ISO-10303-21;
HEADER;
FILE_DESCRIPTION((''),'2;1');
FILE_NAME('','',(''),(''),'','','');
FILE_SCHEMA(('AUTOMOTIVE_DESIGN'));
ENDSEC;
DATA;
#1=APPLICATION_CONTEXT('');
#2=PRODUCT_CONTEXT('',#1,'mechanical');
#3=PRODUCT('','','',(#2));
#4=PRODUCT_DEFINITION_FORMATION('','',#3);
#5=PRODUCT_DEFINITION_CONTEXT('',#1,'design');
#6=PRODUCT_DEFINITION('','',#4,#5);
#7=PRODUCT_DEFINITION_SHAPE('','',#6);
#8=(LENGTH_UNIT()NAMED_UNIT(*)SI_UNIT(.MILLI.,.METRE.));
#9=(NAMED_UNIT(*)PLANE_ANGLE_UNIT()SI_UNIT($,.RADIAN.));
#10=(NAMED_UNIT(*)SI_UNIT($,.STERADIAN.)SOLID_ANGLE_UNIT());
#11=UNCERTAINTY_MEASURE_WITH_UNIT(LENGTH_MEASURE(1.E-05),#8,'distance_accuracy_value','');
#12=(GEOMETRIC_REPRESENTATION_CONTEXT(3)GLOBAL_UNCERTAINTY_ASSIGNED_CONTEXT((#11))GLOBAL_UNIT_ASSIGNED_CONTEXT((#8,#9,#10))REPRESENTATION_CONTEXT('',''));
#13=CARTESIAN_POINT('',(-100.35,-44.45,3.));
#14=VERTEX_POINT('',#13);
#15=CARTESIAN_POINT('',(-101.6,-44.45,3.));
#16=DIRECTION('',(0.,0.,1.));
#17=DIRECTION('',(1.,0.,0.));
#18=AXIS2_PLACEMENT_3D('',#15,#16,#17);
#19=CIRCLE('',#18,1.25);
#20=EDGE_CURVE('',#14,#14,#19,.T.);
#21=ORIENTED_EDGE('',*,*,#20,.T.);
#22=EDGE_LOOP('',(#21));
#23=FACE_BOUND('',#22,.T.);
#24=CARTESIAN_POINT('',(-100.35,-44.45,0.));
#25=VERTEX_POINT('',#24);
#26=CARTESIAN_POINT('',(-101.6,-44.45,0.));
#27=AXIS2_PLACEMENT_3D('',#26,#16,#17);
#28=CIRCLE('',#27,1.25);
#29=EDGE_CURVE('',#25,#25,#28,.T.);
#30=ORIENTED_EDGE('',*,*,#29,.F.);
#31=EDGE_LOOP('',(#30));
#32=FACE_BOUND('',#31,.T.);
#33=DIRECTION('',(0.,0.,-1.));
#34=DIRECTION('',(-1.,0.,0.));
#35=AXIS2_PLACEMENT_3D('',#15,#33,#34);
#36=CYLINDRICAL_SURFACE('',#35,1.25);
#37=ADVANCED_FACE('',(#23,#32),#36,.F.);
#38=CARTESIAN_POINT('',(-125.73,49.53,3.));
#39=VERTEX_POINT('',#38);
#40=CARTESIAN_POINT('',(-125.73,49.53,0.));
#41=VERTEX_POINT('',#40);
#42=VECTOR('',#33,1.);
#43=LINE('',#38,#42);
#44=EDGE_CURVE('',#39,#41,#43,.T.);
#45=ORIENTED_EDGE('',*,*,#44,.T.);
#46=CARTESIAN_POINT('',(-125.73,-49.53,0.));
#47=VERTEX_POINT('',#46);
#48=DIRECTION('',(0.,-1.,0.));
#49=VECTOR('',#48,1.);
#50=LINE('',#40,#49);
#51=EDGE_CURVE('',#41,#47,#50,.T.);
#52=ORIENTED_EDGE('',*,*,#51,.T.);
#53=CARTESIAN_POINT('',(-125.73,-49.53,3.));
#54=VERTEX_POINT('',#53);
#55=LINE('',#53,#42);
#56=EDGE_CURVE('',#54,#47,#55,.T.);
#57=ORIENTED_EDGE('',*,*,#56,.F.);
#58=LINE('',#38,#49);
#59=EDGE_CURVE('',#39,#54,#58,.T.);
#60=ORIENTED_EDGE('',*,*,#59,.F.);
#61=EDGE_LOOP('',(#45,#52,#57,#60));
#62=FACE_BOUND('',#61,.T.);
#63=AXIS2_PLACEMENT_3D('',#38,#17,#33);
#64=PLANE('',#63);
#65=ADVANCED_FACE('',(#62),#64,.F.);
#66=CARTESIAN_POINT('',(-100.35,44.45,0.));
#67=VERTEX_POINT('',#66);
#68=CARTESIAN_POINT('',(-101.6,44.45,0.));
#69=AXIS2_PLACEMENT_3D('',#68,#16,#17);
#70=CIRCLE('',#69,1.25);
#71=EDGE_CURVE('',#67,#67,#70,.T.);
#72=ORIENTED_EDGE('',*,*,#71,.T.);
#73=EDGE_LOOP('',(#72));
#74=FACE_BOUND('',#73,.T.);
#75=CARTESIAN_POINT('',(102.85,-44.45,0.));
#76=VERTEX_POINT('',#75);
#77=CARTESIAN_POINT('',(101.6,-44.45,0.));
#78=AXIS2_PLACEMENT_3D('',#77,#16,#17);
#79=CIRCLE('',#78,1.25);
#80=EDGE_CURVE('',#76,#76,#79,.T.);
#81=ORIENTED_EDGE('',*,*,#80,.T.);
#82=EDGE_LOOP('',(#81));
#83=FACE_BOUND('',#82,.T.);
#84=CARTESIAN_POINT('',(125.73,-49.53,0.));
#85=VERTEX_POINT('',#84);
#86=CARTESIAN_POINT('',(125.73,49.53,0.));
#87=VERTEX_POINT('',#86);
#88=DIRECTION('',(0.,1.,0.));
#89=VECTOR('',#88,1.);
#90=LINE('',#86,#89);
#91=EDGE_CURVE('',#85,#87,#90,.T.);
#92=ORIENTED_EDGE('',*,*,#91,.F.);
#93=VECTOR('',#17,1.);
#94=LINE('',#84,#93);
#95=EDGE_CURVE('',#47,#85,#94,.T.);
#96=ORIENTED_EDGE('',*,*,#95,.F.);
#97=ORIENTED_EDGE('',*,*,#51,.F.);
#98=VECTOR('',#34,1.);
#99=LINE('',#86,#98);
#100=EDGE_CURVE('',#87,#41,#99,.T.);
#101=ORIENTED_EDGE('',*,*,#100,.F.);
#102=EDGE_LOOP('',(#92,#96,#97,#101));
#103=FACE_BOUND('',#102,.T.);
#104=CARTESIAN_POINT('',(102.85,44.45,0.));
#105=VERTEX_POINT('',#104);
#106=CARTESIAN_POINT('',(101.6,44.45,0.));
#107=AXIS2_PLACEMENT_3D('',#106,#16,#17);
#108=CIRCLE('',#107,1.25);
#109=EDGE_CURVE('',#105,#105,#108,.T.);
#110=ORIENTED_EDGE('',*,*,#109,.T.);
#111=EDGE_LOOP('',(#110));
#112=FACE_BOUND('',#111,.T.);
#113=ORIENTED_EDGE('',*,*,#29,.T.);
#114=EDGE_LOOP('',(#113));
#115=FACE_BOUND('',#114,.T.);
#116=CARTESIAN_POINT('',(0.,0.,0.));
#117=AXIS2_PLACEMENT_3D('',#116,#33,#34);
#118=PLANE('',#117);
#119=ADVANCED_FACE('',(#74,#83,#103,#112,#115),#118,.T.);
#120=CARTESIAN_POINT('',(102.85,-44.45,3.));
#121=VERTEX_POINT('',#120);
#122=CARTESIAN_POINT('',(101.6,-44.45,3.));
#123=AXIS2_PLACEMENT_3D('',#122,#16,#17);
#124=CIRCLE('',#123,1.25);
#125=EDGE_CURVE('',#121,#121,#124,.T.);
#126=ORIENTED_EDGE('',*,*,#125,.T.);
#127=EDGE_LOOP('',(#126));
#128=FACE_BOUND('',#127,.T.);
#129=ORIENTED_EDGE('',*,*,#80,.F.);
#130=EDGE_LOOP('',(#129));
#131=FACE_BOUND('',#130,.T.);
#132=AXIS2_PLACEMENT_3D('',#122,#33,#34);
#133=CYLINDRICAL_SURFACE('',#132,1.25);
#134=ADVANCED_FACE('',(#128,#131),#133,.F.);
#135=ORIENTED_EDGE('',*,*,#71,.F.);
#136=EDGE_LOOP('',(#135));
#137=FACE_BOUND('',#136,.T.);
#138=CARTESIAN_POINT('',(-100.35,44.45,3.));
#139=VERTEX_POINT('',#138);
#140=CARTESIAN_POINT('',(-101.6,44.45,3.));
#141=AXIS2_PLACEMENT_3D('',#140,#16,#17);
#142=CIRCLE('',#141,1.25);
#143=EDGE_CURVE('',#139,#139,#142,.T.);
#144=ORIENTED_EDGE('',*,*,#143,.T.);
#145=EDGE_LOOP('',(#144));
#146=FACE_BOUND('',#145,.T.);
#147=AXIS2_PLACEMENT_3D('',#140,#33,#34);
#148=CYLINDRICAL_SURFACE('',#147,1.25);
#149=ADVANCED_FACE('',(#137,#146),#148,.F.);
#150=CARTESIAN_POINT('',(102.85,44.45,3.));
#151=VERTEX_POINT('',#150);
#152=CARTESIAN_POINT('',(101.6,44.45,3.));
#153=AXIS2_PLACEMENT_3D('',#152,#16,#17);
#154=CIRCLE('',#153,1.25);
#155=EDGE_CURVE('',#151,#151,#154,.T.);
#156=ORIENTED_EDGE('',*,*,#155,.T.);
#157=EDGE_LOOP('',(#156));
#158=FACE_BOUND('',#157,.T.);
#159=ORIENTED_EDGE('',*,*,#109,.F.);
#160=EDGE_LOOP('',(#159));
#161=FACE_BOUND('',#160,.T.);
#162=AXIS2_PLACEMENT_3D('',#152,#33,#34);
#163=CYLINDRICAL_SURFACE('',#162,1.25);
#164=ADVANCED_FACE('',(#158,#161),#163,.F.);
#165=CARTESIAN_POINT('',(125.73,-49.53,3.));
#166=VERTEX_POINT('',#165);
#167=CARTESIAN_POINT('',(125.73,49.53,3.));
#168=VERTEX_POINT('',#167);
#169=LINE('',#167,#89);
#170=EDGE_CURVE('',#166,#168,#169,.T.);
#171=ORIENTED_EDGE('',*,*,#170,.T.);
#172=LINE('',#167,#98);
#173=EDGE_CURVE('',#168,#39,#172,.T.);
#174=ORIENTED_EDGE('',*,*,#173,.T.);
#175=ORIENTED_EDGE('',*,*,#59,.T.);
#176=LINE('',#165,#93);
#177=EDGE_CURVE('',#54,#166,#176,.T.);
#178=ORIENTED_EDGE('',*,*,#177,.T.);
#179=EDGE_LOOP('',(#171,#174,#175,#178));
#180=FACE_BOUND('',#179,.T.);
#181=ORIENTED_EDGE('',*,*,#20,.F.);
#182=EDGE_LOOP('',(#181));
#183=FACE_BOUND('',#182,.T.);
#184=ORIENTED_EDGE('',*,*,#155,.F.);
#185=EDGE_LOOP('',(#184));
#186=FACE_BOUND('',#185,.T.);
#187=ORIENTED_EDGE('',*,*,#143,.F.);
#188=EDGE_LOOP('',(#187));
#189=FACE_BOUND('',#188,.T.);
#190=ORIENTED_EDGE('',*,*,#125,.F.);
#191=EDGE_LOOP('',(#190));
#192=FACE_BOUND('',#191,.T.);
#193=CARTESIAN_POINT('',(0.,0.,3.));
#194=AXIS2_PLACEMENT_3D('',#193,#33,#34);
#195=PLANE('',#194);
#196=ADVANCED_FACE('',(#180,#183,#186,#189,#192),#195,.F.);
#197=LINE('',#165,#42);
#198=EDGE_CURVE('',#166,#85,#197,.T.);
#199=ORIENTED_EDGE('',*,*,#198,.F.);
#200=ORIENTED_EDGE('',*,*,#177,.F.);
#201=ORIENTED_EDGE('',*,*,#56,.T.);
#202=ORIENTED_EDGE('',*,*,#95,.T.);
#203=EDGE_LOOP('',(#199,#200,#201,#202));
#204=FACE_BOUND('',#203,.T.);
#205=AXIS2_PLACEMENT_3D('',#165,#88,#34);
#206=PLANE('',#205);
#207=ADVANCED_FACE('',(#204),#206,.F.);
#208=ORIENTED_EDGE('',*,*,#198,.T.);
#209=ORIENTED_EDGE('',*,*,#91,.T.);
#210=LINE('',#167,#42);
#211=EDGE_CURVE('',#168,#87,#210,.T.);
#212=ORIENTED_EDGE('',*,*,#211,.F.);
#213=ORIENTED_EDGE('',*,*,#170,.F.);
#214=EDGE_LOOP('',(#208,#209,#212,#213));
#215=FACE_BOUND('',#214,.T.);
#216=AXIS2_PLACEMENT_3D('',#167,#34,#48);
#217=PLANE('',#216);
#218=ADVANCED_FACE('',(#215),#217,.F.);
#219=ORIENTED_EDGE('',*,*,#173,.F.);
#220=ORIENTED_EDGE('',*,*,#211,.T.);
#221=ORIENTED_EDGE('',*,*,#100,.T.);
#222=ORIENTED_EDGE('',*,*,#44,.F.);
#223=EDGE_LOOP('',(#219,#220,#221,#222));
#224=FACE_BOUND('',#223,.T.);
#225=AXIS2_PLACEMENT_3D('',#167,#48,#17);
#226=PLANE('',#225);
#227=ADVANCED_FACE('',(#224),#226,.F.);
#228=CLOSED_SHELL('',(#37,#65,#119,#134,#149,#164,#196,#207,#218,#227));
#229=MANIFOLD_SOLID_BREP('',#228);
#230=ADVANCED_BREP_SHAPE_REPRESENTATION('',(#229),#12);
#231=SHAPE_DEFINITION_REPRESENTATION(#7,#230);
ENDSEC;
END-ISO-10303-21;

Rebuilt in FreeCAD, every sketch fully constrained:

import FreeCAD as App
import Part
import Sketcher
from FreeCAD import Vector

doc = App.newDocument("Part")
params = doc.addObject("Spreadsheet::Sheet", "Params")
for row, (alias, value) in enumerate([
    ("sketch1_diameter", "2.5 mm"),
    ("sketch1_width", "251.46 mm"),
    ("sketch1_height", "99.06 mm"),
    ("pad1_length", "3 mm"),
], start=1):
    params.set(f"A{row}", alias)
    params.set(f"B{row}", "=" + value)
    params.setAlias(f"B{row}", alias)

body = doc.addObject("PartDesign::Body", "Body")

# Sketch on XY plane
sketch1 = doc.addObject("Sketcher::SketchObject", "Sketch")
body.addObject(sketch1)
sketch1.AttachmentSupport = (doc.XY_Plane, [""])
sketch1.MapMode = "FlatFace"
sketch1.addGeometry([
    Part.LineSegment(Vector(-125.7, 49.5, 0), Vector(-125.7, -49.5, 0)),  # 0
    Part.LineSegment(Vector(-125.7, -49.5, 0), Vector(125.7, -49.5, 0)),  # 1
    Part.LineSegment(Vector(125.7, -49.5, 0), Vector(125.7, 49.5, 0)),  # 2
    Part.LineSegment(Vector(125.7, 49.5, 0), Vector(-125.7, 49.5, 0)),  # 3
    Part.Circle(Vector(-101.6, -44.5, 0), Vector(0, 0, 1), 1.2),  # 4
    Part.Circle(Vector(101.6, -44.5, 0), Vector(0, 0, 1), 1.2),  # 5
    Part.Circle(Vector(-101.6, 44.5, 0), Vector(0, 0, 1), 1.2),  # 6
    Part.Circle(Vector(101.6, 44.5, 0), Vector(0, 0, 1), 1.2),  # 7
], False)
sketch1.addConstraint([
    Sketcher.Constraint("Coincident", 0, 2, 1, 1),
    Sketcher.Constraint("Coincident", 1, 2, 2, 1),
    Sketcher.Constraint("Coincident", 2, 2, 3, 1),
    Sketcher.Constraint("Coincident", 3, 2, 0, 1),
    Sketcher.Constraint("Vertical", 0),
    Sketcher.Constraint("Horizontal", 1),
    Sketcher.Constraint("Vertical", 2),
    Sketcher.Constraint("Horizontal", 3),
    Sketcher.Constraint("Equal", 4, 5),
    Sketcher.Constraint("Equal", 5, 6),
    Sketcher.Constraint("Equal", 6, 7),
    Sketcher.Constraint("Symmetric", 5, 3, 6, 3, -1, 1),
    Sketcher.Constraint("Symmetric", 4, 3, 7, 3, -1, 1),
    Sketcher.Constraint("Symmetric", 0, 2, 2, 2, -1, 1),
    Sketcher.Constraint("Symmetric", 4, 3, 5, 3, -2),
    Sketcher.Constraint("Diameter", 4, 2.5),
    Sketcher.Constraint("DistanceX", 1, 1, 1, 2, 251.46),
    Sketcher.Constraint("DistanceY", 0, 2, 0, 1, 99.06),
    Sketcher.Constraint("DistanceX", 4, 3, -1, 1, 101.6),
    Sketcher.Constraint("DistanceY", 4, 3, 6, 3, 88.9),
])
sketch1.setExpression("Constraints[15]", "Params.sketch1_diameter")
sketch1.setExpression("Constraints[16]", "Params.sketch1_width")
sketch1.setExpression("Constraints[17]", "Params.sketch1_height")
pad1 = doc.addObject("PartDesign::Pad", "Pad")
body.addObject(pad1)
pad1.Profile = sketch1
pad1.setExpression("Length", "Params.pad1_length")

doc.recompute()
